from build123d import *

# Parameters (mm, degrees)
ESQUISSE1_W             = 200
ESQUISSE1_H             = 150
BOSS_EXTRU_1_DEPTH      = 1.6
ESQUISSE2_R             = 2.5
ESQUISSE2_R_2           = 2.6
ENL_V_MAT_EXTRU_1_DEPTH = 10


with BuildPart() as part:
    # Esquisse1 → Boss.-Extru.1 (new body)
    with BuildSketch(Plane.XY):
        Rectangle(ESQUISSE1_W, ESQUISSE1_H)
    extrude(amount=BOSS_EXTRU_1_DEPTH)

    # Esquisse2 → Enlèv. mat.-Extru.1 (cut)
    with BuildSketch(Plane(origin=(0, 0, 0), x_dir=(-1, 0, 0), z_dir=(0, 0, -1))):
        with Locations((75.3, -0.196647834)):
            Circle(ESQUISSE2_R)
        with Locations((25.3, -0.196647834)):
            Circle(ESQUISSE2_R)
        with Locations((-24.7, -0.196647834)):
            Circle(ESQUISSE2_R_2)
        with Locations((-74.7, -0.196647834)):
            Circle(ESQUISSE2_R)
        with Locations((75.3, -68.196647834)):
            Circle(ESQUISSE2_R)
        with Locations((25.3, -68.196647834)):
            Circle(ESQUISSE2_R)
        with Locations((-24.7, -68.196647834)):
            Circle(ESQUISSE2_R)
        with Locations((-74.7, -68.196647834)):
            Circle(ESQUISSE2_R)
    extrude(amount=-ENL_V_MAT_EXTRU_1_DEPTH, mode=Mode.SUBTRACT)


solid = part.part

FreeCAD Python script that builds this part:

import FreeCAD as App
import Part
import Sketcher
from FreeCAD import Vector
Q = App.Units.Quantity

doc = App.newDocument("Part")
body = doc.addObject("PartDesign::Body", "Body")

# Sketch on XY plane
sketch1 = body.newObject("Sketcher::SketchObject", "Sketch")
sketch1.AttachmentSupport = (doc.getObject("XY_Plane"), [""])
sketch1.MapMode = "FlatFace"
sketch1.addGeometry([
    Part.LineSegment(Vector(-100, 75, 0), Vector(-100, -75, 0)),
    Part.LineSegment(Vector(-100, -75, 0), Vector(100, -75, 0)),
    Part.LineSegment(Vector(100, -75, 0), Vector(100, 75, 0)),
    Part.LineSegment(Vector(100, 75, 0), Vector(-100, 75, 0)),
], False)
sketch1.addConstraint([
    Sketcher.Constraint("Coincident", 0, 2, 1, 1),
    Sketcher.Constraint("Coincident", 1, 2, 2, 1),
    Sketcher.Constraint("Coincident", 2, 2, 3, 1),
    Sketcher.Constraint("Coincident", 3, 2, 0, 1),
    Sketcher.Constraint("Vertical", 0),
    Sketcher.Constraint("Horizontal", 1),
    Sketcher.Constraint("Vertical", 2),
    Sketcher.Constraint("Horizontal", 3),
    Sketcher.Constraint("Symmetric", 0, 2, 2, 2, -1, 1),
    Sketcher.Constraint("DistanceX", 1, 1, 1, 2, Q("200 mm")),
    Sketcher.Constraint("DistanceY", 0, 2, 0, 1, Q("150 mm")),
])
pad1 = body.newObject("PartDesign::Pad", "Pad")
pad1.Profile = sketch1
pad1.Length = 1.6

# Sketch on XY plane
sketch2 = body.newObject("Sketcher::SketchObject", "Sketch001")
sketch2.AttachmentSupport = (doc.getObject("XY_Plane"), [""])
sketch2.MapMode = "FlatFace"
sketch2.addGeometry([
    Part.Circle(Vector(-75.3, -0.2, 0), Vector(0, 0, 1), 2.5),  # 0
    Part.Circle(Vector(-25.3, -0.2, 0), Vector(0, 0, 1), 2.5),  # 1
    Part.Circle(Vector(24.7, -0.2, 0), Vector(0, 0, 1), 2.6),  # 2
    Part.Circle(Vector(74.7, -0.2, 0), Vector(0, 0, 1), 2.5),  # 3
    Part.Circle(Vector(-75.3, -68.2, 0), Vector(0, 0, 1), 2.5),  # 4
    Part.Circle(Vector(-25.3, -68.2, 0), Vector(0, 0, 1), 2.5),  # 5
    Part.Circle(Vector(24.7, -68.2, 0), Vector(0, 0, 1), 2.5),  # 6
    Part.Circle(Vector(74.7, -68.2, 0), Vector(0, 0, 1), 2.5),  # 7
], False)
sketch2.addConstraint([
    Sketcher.Constraint("Equal", 0, 1),
    Sketcher.Constraint("Equal", 1, 3),
    Sketcher.Constraint("Equal", 3, 4),
    Sketcher.Constraint("Equal", 4, 5),
    Sketcher.Constraint("Equal", 5, 6),
    Sketcher.Constraint("Equal", 6, 7),
    Sketcher.Constraint("Horizontal", 0, 3, 1, 3),
    Sketcher.Constraint("Horizontal", 1, 3, 2, 3),
    Sketcher.Constraint("Horizontal", 2, 3, 3, 3),
    Sketcher.Constraint("Horizontal", 4, 3, 5, 3),
    Sketcher.Constraint("Horizontal", 5, 3, 6, 3),
    Sketcher.Constraint("Horizontal", 6, 3, 7, 3),
    Sketcher.Constraint("Vertical", 0, 3, 4, 3),
    Sketcher.Constraint("Vertical", 1, 3, 5, 3),
    Sketcher.Constraint("Vertical", 2, 3, 6, 3),
    Sketcher.Constraint("Vertical", 3, 3, 7, 3),
    Sketcher.Constraint("Diameter", 0, Q("5 mm")),
    Sketcher.Constraint("Diameter", 2, Q("5.2 mm")),
    Sketcher.Constraint("DistanceX", 0, 3, 1, 3, Q("50 mm")),
    Sketcher.Constraint("DistanceX", 1, 3, 2, 3, Q("50 mm")),
    Sketcher.Constraint("DistanceX", 2, 3, 3, 3, Q("50 mm")),
    Sketcher.Constraint("DistanceY", 4, 3, 0, 3, Q("68 mm")),
    Sketcher.Constraint("DistanceX", 0, 3, -1, 1, Q("75.3 mm")),
    Sketcher.Constraint("DistanceY", 0, 3, -1, 1, Q("0.196648 mm")),
])
pocket1 = body.newObject("PartDesign::Pocket", "Pocket")
pocket1.Profile = sketch2
pocket1.Length = 10
pocket1.Reversed = True

doc.recompute()
